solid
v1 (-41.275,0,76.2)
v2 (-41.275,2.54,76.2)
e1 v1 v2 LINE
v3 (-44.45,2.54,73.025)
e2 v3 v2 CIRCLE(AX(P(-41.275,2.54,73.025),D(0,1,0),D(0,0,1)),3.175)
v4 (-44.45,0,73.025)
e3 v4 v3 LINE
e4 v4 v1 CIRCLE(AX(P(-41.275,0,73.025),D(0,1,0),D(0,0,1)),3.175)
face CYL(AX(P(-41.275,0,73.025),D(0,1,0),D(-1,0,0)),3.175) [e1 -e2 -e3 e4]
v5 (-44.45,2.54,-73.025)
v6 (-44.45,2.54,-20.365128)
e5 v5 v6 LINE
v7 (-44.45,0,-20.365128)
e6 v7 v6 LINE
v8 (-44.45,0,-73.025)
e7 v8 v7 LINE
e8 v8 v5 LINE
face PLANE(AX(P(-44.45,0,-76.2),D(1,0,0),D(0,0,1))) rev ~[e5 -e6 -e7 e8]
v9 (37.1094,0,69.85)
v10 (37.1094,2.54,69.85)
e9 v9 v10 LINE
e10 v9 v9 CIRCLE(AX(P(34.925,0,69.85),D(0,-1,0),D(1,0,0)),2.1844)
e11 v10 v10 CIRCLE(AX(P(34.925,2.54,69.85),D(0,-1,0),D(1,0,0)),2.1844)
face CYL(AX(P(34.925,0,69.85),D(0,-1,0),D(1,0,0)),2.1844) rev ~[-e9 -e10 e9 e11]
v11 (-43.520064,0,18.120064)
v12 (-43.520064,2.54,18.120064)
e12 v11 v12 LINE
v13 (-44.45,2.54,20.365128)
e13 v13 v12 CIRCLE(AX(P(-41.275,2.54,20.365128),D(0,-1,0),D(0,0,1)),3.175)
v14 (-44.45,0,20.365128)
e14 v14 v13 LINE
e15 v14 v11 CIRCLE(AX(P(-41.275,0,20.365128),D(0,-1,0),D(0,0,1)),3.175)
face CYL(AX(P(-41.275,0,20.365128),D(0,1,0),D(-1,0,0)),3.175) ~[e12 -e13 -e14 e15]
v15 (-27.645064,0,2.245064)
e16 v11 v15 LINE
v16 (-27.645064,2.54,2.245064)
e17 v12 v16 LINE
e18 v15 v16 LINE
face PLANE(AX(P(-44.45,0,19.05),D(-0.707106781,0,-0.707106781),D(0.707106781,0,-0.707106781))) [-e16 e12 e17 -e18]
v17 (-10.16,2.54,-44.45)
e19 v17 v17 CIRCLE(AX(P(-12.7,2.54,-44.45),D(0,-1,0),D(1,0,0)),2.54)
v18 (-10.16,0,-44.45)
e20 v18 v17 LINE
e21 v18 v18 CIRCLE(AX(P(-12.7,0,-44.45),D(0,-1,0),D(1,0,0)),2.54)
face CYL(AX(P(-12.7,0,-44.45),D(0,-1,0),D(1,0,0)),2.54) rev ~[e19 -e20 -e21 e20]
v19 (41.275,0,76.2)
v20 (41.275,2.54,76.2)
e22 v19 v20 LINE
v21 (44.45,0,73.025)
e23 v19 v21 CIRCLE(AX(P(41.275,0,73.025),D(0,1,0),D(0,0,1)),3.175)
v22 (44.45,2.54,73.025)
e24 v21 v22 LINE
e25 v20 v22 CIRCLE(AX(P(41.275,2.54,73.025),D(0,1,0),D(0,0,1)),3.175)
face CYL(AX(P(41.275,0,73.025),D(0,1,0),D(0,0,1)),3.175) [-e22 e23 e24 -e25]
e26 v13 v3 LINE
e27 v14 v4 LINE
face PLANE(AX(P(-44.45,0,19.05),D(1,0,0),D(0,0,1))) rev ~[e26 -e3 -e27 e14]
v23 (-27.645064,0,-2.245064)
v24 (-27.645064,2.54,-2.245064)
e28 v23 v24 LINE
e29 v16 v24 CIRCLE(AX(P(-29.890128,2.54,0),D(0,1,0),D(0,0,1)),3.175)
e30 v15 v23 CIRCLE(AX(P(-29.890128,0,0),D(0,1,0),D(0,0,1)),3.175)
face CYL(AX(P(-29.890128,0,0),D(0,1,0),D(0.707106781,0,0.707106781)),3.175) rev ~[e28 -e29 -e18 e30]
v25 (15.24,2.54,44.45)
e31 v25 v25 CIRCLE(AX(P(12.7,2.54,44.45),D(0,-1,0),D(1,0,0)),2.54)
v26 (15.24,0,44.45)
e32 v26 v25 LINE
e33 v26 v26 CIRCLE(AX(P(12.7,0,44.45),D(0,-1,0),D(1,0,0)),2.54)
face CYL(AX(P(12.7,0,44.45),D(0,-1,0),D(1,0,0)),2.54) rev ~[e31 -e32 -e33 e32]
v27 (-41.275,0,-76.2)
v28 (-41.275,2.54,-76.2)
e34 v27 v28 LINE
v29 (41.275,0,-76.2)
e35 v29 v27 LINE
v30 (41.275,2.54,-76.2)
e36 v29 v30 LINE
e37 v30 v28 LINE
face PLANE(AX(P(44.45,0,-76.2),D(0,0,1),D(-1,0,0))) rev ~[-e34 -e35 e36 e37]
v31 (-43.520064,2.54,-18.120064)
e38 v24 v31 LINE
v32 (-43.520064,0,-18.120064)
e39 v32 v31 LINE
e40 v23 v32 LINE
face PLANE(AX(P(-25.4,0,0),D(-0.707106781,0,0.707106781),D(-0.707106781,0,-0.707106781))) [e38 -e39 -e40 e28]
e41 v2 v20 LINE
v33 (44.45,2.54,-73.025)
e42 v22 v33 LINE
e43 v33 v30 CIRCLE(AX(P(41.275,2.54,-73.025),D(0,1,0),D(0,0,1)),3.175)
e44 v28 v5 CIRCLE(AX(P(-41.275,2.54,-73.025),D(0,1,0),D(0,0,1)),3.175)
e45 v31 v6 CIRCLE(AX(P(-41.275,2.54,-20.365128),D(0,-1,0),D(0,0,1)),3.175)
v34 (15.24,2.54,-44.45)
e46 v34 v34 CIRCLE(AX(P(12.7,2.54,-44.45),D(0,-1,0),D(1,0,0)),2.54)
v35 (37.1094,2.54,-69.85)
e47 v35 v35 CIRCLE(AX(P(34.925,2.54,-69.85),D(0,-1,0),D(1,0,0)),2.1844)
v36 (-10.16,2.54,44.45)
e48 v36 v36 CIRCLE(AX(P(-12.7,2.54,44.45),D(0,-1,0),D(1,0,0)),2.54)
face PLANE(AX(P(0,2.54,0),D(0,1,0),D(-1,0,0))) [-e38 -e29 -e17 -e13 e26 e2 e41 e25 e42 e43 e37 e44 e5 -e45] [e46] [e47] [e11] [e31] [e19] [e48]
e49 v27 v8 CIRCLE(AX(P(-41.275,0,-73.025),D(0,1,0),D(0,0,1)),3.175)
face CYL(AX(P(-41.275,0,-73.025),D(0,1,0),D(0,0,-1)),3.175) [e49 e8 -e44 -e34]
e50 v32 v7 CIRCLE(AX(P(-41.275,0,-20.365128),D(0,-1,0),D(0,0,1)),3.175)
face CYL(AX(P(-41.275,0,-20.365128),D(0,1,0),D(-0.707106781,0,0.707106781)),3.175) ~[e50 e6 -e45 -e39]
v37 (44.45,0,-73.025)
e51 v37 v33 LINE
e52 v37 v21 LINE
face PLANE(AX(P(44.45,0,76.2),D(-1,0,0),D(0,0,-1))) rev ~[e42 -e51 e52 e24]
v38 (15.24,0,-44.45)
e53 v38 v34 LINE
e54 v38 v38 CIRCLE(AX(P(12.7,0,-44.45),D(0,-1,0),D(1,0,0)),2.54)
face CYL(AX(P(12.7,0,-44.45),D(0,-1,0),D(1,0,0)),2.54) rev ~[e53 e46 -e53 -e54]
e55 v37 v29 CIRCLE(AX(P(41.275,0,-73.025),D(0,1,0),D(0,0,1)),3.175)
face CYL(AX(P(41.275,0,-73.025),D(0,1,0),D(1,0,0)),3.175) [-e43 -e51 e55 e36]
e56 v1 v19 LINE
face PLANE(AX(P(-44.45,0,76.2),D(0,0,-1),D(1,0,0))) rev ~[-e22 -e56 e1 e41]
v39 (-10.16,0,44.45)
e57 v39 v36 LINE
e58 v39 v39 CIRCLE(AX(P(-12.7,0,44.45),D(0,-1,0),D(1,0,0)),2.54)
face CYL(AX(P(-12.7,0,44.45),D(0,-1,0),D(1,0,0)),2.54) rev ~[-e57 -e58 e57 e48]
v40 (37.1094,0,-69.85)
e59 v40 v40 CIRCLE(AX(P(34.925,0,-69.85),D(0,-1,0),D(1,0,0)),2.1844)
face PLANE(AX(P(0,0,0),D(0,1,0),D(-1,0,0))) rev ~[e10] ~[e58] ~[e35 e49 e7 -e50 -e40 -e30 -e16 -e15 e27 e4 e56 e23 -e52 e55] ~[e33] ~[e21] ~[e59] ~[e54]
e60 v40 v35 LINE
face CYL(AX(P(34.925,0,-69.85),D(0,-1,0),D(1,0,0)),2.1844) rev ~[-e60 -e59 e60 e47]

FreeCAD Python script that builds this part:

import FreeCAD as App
import Part
import Sketcher

V = App.Vector
Q = App.Units.Quantity


def edges_at(feature, points):
    """Names of the edges that pass closest to the given points."""
    edges = feature.Shape.Edges
    near = lambda p: min(range(len(edges)), key=lambda i: edges[i].distToShape(Part.Vertex(*p))[0])
    return sorted({f"Edge{near(p) + 1}" for p in points})


def add_polygon(sketch, points):
    """Adds a closed chain of lines whose ends are joined by coincident constraints."""
    first, n = sketch.GeometryCount, len(points)
    for a, b in zip(points, points[1:] + points[:1]):
        sketch.addGeometry(Part.LineSegment(App.Vector(*a, 0), App.Vector(*b, 0)), False)
    for i in range(n):
        sketch.addConstraint(Sketcher.Constraint("Coincident", first + i, 2, first + (i + 1) % n, 1))

doc = App.newDocument("Part")
body = doc.addObject("PartDesign::Body", "Body")

# Sketch on XZ plane
sketch1 = body.newObject("Sketcher::SketchObject", "Sketch")
sketch1.AttachmentSupport = (doc.getObject("XZ_Plane"), [""])
sketch1.MapMode = "FlatFace"
add_polygon(sketch1, [(-44.45, 19.05), (-44.45, 76.2), (44.45, 76.2), (44.45, -76.2), (-44.45, -76.2), (-44.45, -19.05), (-25.4, 0)])  # lines 0-6
sketch1.addConstraint(Sketcher.Constraint("Vertical", 0))
sketch1.addConstraint(Sketcher.Constraint("Horizontal", 1))
sketch1.addConstraint(Sketcher.Constraint("Vertical", 2))
sketch1.addConstraint(Sketcher.Constraint("Horizontal", 3))
sketch1.addConstraint(Sketcher.Constraint("Vertical", 4))
sketch1.addConstraint(Sketcher.Constraint("Symmetric", 0, 2, 2, 2, -1, 1))
sketch1.addConstraint(Sketcher.Constraint("Symmetric", 4, 2, 6, 2, -1))
sketch1.addConstraint(Sketcher.Constraint("PointOnObject", 5, 2, -1))
sketch1.addConstraint(Sketcher.Constraint("Perpendicular", 5, 6))
sketch1.addConstraint(Sketcher.Constraint("DistanceY", 2, 2, 2, 1, Q("6 in")))
sketch1.addConstraint(Sketcher.Constraint("DistanceX", 1, 1, 1, 2, Q("3.5 in")))
sketch1.addConstraint(Sketcher.Constraint("DistanceY", 4, 2, -1, 1, Q("0.75 in")))
pad1 = body.newObject("PartDesign::Pad", "Pad")
pad1.Profile = sketch1
pad1.Length = Q("0.1 in")
pad1.Reversed = True

# Sketch on XZ plane
sketch2 = body.newObject("Sketcher::SketchObject", "Sketch001")
sketch2.AttachmentSupport = (doc.getObject("XZ_Plane"), [""])
sketch2.MapMode = "FlatFace"
sketch2.addGeometry(Part.Circle(V(34.925, 69.85, 0), V(0, 0, 1), 2.1844), False)
sketch2.addGeometry(Part.Circle(V(34.925, -69.85, 0), V(0, 0, 1), 2.1844), False)
sketch2.addConstraint(Sketcher.Constraint("Equal", 0, 1))
sketch2.addConstraint(Sketcher.Constraint("Symmetric", 0, 3, 1, 3, -1))
sketch2.addConstraint(Sketcher.Constraint("Diameter", 0, Q("0.172 in")))
sketch2.addConstraint(Sketcher.Constraint("DistanceY", 1, 3, 0, 3, Q("5.5 in")))
sketch2.addConstraint(Sketcher.Constraint("DistanceX", -1, 1, 0, 3, Q("1.375 in")))
pocket1 = body.newObject("PartDesign::Pocket", "Pocket")
pocket1.Profile = sketch2
pocket1.Type = "ThroughAll"
doc.recompute()

fillet = body.newObject("PartDesign::Fillet", "Fillet")
fillet.Base = (pocket1, edges_at(pocket1, [(-25.4, 1.27, 0), (-44.45, 1.27, -19.05), (-44.45, 1.27, 19.05)]))
fillet.Radius = Q("0.125 in")
doc.recompute()

fillet2 = body.newObject("PartDesign::Fillet", "Fillet001")
fillet2.Base = (fillet, edges_at(fillet, [
    (-44.45, 1.27, -76.2),
    (44.45, 1.27, -76.2),
    (44.45, 1.27, 76.2),
    (-44.45, 1.27, 76.2),
]))
fillet2.Radius = Q("0.125 in")

# Sketch on XZ plane
sketch3 = body.newObject("Sketcher::SketchObject", "Sketch002")
sketch3.AttachmentSupport = (doc.getObject("XZ_Plane"), [""])
sketch3.MapMode = "FlatFace"
sketch3.addGeometry(Part.Circle(V(-12.7, 44.45, 0), V(0, 0, 1), 2.54), False)
sketch3.addGeometry(Part.Circle(V(12.7, 44.45, 0), V(0, 0, 1), 2.54), False)
sketch3.addGeometry(Part.Circle(V(-12.7, -44.45, 0), V(0, 0, 1), 2.54), False)
sketch3.addGeometry(Part.Circle(V(12.7, -44.45, 0), V(0, 0, 1), 2.54), False)
sketch3.addConstraint(Sketcher.Constraint("Equal", 0, 1))
sketch3.addConstraint(Sketcher.Constraint("Equal", 1, 2))
sketch3.addConstraint(Sketcher.Constraint("Equal", 2, 3))
sketch3.addConstraint(Sketcher.Constraint("Symmetric", 1, 3, 2, 3, -1, 1))
sketch3.addConstraint(Sketcher.Constraint("Symmetric", 0, 3, 3, 3, -1, 1))
sketch3.addConstraint(Sketcher.Constraint("Symmetric", 0, 3, 1, 3, -2))
sketch3.addConstraint(Sketcher.Constraint("Diameter", 0, Q("0.2 in")))
sketch3.addConstraint(Sketcher.Constraint("DistanceX", 0, 3, 1, 3, Q("1 in")))
sketch3.addConstraint(Sketcher.Constraint("DistanceY", 2, 3, 0, 3, Q("3.5 in")))
pocket2 = body.newObject("PartDesign::Pocket", "Pocket001")
pocket2.Profile = sketch3
pocket2.Type = "ThroughAll"

doc.recompute()
